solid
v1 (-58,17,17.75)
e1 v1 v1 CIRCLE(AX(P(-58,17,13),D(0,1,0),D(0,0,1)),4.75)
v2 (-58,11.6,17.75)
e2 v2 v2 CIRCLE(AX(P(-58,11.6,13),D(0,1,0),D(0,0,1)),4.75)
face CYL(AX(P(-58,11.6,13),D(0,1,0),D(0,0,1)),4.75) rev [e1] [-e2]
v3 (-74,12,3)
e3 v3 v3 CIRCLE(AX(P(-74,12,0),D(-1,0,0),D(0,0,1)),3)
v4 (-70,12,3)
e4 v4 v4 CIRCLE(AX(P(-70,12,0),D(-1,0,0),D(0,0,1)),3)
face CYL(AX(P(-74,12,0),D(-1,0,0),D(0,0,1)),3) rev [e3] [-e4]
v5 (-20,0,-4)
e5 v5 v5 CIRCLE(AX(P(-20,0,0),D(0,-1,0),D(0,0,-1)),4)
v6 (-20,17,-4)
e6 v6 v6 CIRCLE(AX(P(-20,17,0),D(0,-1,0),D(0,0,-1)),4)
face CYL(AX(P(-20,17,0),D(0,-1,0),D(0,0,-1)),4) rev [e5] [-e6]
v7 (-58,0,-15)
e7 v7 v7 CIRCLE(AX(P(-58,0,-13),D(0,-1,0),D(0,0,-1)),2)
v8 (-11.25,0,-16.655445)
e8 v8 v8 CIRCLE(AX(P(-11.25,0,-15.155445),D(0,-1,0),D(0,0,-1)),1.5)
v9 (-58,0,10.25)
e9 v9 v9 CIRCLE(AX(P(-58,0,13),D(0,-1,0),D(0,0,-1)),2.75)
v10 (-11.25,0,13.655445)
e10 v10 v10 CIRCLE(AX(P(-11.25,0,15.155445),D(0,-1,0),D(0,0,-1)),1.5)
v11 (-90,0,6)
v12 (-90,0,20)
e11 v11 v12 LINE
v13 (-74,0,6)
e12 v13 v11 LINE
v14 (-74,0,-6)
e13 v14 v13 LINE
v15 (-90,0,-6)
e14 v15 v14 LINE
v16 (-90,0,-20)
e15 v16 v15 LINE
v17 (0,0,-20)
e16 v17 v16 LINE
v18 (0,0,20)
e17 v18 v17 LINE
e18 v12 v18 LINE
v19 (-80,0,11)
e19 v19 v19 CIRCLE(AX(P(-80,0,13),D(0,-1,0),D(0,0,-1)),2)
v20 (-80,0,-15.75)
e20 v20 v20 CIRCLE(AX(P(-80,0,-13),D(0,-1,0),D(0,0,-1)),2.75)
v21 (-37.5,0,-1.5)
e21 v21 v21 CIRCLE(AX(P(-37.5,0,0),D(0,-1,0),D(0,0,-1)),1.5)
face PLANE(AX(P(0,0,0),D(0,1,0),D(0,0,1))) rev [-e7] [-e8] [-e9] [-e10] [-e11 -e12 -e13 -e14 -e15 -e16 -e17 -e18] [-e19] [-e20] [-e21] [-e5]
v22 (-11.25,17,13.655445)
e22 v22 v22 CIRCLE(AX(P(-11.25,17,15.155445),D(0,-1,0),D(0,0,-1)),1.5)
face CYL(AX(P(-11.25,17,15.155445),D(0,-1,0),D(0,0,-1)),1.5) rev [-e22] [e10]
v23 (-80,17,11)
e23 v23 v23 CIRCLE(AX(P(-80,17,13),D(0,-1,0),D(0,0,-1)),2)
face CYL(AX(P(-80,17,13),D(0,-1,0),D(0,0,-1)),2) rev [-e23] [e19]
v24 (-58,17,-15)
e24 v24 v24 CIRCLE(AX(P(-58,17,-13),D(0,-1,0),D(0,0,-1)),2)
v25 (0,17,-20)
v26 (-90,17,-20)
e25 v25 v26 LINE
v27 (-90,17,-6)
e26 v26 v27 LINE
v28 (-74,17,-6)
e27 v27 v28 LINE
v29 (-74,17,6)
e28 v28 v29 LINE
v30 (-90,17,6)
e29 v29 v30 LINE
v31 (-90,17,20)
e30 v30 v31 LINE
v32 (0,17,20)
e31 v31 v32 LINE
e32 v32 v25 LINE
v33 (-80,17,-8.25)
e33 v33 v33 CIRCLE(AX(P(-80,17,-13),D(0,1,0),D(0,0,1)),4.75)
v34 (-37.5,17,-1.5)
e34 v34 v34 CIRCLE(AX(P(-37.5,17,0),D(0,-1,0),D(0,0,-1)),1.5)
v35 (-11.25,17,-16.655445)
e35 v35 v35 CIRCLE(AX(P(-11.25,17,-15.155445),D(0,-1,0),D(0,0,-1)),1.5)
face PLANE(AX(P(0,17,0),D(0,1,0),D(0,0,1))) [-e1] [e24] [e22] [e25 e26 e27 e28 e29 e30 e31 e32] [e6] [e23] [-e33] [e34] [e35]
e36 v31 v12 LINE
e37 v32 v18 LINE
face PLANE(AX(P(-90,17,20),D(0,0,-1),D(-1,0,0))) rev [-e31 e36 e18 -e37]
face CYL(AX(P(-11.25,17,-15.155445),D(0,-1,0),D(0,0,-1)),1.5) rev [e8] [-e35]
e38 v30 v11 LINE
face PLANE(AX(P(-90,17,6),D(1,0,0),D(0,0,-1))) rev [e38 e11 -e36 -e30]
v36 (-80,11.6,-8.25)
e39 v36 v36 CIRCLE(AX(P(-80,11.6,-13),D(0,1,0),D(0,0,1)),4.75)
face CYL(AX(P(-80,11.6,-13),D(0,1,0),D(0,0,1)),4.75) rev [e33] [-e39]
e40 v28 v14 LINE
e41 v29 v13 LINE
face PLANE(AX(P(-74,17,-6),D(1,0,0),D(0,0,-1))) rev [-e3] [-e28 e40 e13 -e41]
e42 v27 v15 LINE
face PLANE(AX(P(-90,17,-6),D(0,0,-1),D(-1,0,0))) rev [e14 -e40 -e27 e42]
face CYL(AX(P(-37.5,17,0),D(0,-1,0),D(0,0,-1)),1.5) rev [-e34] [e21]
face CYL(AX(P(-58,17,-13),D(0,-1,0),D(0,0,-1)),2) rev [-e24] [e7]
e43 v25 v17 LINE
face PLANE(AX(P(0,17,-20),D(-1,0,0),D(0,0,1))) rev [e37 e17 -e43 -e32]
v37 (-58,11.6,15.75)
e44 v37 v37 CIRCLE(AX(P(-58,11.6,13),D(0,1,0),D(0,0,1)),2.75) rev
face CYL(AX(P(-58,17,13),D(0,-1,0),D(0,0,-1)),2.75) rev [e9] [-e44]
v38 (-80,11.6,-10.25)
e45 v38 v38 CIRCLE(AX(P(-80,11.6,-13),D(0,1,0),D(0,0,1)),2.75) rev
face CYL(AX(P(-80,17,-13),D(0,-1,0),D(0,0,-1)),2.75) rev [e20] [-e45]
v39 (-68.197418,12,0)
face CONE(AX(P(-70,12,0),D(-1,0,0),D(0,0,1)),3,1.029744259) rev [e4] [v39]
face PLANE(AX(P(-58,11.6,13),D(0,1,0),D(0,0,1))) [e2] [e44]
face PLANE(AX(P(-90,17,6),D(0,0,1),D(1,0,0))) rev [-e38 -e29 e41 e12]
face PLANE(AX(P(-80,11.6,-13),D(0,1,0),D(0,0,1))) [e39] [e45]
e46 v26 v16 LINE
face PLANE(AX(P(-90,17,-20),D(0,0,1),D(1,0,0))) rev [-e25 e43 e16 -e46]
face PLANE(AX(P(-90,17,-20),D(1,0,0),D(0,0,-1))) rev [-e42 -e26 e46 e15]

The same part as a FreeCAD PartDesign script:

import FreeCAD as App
import Part
import Sketcher
from FreeCAD import Vector


def add_polygon(sketch, points):
    """Adds a closed chain of lines whose ends are joined by coincident constraints."""
    first, n = sketch.GeometryCount, len(points)
    for a, b in zip(points, points[1:] + points[:1]):
        sketch.addGeometry(Part.LineSegment(App.Vector(*a, 0), App.Vector(*b, 0)), False)
    for i in range(n):
        sketch.addConstraint(Sketcher.Constraint("Coincident", first + i, 2, first + (i + 1) % n, 1))

doc = App.newDocument("Part")
body = doc.addObject("PartDesign::Body", "Body")

# Sketch on XZ plane
sketch1 = doc.addObject("Sketcher::SketchObject", "Sketch")
body.addObject(sketch1)
sketch1.AttachmentSupport = (doc.XZ_Plane, [""])
sketch1.MapMode = "FlatFace"
add_polygon(sketch1, [(-90, 6), (-90, 20), (0, 20), (0, -20), (-90, -20), (-90, -6), (-74, -6), (-74, 6)])  # lines 0-7
sketch1.addConstraint([
    Sketcher.Constraint("Vertical", 0),
    Sketcher.Constraint("Horizontal", 1),
    Sketcher.Constraint("Vertical", 2),
    Sketcher.Constraint("Horizontal", 3),
    Sketcher.Constraint("Vertical", 4),
    Sketcher.Constraint("Horizontal", 5),
    Sketcher.Constraint("Vertical", 6),
    Sketcher.Constraint("Horizontal", 7),
    Sketcher.Constraint("Symmetric", 1, 2, 2, 2, -1, 1),
    Sketcher.Constraint("Symmetric", 4, 2, 7, 2, -1),
    Sketcher.Constraint("DistanceX", 1, 1, 1, 2, 90.0),
    Sketcher.Constraint("DistanceX", 5, 1, 5, 2, 16.0),
    Sketcher.Constraint("DistanceY", 0, 1, 0, 2, 14.0),
    Sketcher.Constraint("DistanceY", 2, 2, 2, 1, 40.0),
])
pad1 = doc.addObject("PartDesign::Pad", "Pad")
body.addObject(pad1)
pad1.Profile = sketch1
pad1.Length = 17
pad1.Reversed = True

# Sketch on XZ plane
sketch2 = doc.addObject("Sketcher::SketchObject", "Sketch001")
body.addObject(sketch2)
sketch2.AttachmentSupport = (doc.XZ_Plane, [""])
sketch2.MapMode = "FlatFace"
sketch2.addGeometry([
    Part.Circle(Vector(-80, -13, 0), Vector(0, 0, 1), 2.8),  # 0
    Part.Circle(Vector(-80, 13, 0), Vector(0, 0, 1), 2),  # 1
    Part.Circle(Vector(-58, 13, 0), Vector(0, 0, 1), 2.8),  # 2
    Part.Circle(Vector(-58, -13, 0), Vector(0, 0, 1), 2),  # 3
    Part.Circle(Vector(-20, 0, 0), Vector(0, 0, 1), 4),  # 4
    Part.Circle(Vector(-11.2, 15.2, 0), Vector(0, 0, 1), 1.5),  # 5
    Part.Circle(Vector(-11.2, -15.2, 0), Vector(0, 0, 1), 1.5),  # 6
    Part.Circle(Vector(-37.5, 0, 0), Vector(0, 0, 1), 1.5),  # 7
], False)
sketch2.addConstraint([
    Sketcher.Constraint("Equal", 0, 2),
    Sketcher.Constraint("Equal", 1, 3),
    Sketcher.Constraint("Equal", 5, 6),
    Sketcher.Constraint("Equal", 6, 7),
    Sketcher.Constraint("Symmetric", 0, 3, 1, 3, -1),
    Sketcher.Constraint("Symmetric", 2, 3, 3, 3, -1),
    Sketcher.Constraint("Symmetric", 5, 3, 6, 3, -1),
    Sketcher.Constraint("PointOnObject", 4, 3, -1),
    Sketcher.Constraint("PointOnObject", 7, 3, -1),
    Sketcher.Constraint("Horizontal", 1, 3, 2, 3),
    Sketcher.Constraint("Diameter", 1, 4.0),
    Sketcher.Constraint("Diameter", 4, 8.0),
    Sketcher.Constraint("Diameter", 5, 3.0),
    Sketcher.Constraint("Diameter", 0, 5.5),
    Sketcher.Constraint("DistanceX", 0, 3, -1, 1, 80.0),
    Sketcher.Constraint("DistanceY", 0, 3, -1, 1, 13.0),
    Sketcher.Constraint("DistanceX", 2, 3, -1, 1, 58.0),
    Sketcher.Constraint("DistanceX", 4, 3, -1, 1, 20.0),
    Sketcher.Constraint("DistanceX", 7, 3, -1, 1, 37.5),
    Sketcher.Constraint("DistanceX", 5, 3, -1, 1, 11.25),
    Sketcher.Constraint("DistanceY", 6, 3, 5, 3, 30.310889),
])
pocket1 = doc.addObject("PartDesign::Pocket", "Pocket")
body.addObject(pocket1)
pocket1.Profile = sketch2
pocket1.Type = "ThroughAll"

# Sketch on XZ plane
sketch3 = doc.addObject("Sketcher::SketchObject", "Sketch002")
body.addObject(sketch3)
sketch3.AttachmentSupport = (doc.XZ_Plane, [""])
sketch3.MapMode = "FlatFace"
sketch3.AttachmentOffset = App.Placement(Vector(0, 0, -17), App.Rotation())
sketch3.addGeometry([
    Part.Circle(Vector(-80, -13, 0), Vector(0, 0, 1), 4.8),
    Part.Circle(Vector(-58, 13, 0), Vector(0, 0, 1), 4.8),
], False)
sketch3.addConstraint([
    Sketcher.Constraint("Equal", 0, 1),
    Sketcher.Constraint("Diameter", 0, 9.5),
    Sketcher.Constraint("DistanceX", 0, 3, -1, 1, 80.0),
    Sketcher.Constraint("DistanceY", 0, 3, -1, 1, 13.0),
    Sketcher.Constraint("DistanceX", 1, 3, -1, 1, 58.0),
    Sketcher.Constraint("DistanceY", -1, 1, 1, 3, 13.0),
])
pocket2 = doc.addObject("PartDesign::Pocket", "Pocket001")
body.addObject(pocket2)
pocket2.Profile = sketch3
pocket2.Length = 5.4
pocket2.Reversed = True

# Sketch on YZ plane
sketch4 = doc.addObject("Sketcher::SketchObject", "Sketch003")
body.addObject(sketch4)
sketch4.AttachmentSupport = (doc.YZ_Plane, [""])
sketch4.MapMode = "FlatFace"
sketch4.AttachmentOffset = App.Placement(Vector(0, 0, -74), App.Rotation())
sketch4.addGeometry(Part.Circle(Vector(12, 0, 0), Vector(0, 0, 1), 3), False)
sketch4.addConstraint([
    Sketcher.Constraint("PointOnObject", 0, 3, -1),
    Sketcher.Constraint("Diameter", 0, 6.0),
    Sketcher.Constraint("DistanceX", -1, 1, 0, 3, 12.0),
])
doc.recompute()
hole = doc.addObject("PartDesign::Hole", "Hole")
body.addObject(hole)
hole.Profile = sketch4
hole.ThreadType = "None"
hole.Diameter = 6
hole.DepthType = "Dimension"
hole.Depth = 4
hole.DrillPoint = "Angled"
hole.DrillPointAngle = 118
hole.Reversed = True

doc.recompute()
